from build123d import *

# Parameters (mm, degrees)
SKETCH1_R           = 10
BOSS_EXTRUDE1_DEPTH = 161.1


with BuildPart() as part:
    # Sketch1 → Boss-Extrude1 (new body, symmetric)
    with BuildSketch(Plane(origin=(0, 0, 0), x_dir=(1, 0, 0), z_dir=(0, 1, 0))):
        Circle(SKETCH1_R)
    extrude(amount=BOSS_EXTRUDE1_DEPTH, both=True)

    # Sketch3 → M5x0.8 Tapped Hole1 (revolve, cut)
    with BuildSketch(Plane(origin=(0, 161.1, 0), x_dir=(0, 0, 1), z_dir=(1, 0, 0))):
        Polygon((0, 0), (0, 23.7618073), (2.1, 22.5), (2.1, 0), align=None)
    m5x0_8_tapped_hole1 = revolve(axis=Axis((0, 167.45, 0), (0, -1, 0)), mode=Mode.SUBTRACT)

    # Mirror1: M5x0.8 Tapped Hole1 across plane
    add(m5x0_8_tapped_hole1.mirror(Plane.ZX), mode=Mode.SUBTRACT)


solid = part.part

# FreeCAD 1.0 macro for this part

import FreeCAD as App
import Part
import Sketcher
Q = App.Units.Quantity


def add_polygon(sketch, points):
    """Adds a closed chain of lines whose ends are joined by coincident constraints."""
    first, n = sketch.GeometryCount, len(points)
    for a, b in zip(points, points[1:] + points[:1]):
        sketch.addGeometry(Part.LineSegment(App.Vector(*a, 0), App.Vector(*b, 0)), False)
    for i in range(n):
        sketch.addConstraint(Sketcher.Constraint("Coincident", first + i, 2, first + (i + 1) % n, 1))

doc = App.newDocument("Part")
body = doc.addObject("PartDesign::Body", "Body")

# Sketch on XZ plane
sketch1 = body.newObject("Sketcher::SketchObject", "Sketch")
sketch1.AttachmentSupport = (doc.getObject("XZ_Plane"), [""])
sketch1.MapMode = "FlatFace"
sketch1.addGeometry(Part.Circle(App.Vector(0, 0, 0), App.Vector(0, 0, 1), 10), False)
sketch1.addConstraint(Sketcher.Constraint("Coincident", 0, 3, -1, 1))
sketch1.addConstraint(Sketcher.Constraint("Diameter", 0, 20.0))
pad1 = body.newObject("PartDesign::Pad", "Pad")
pad1.Profile = sketch1
pad1.Length = 322.2
pad1.Midplane = True

# Sketch on YZ plane
sketch2 = body.newObject("Sketcher::SketchObject", "Sketch001")
sketch2.AttachmentSupport = (doc.getObject("YZ_Plane"), [""])
sketch2.MapMode = "FlatFace"
add_polygon(sketch2, [(137.338193, 0), (161.1, 0), (161.1, 2.1), (138.6, 2.1)])  # lines 0-3
sketch2.addConstraint(Sketcher.Constraint("Horizontal", 0))
sketch2.addConstraint(Sketcher.Constraint("Vertical", 1))
sketch2.addConstraint(Sketcher.Constraint("Horizontal", 2))
sketch2.addConstraint(Sketcher.Constraint("PointOnObject", 0, 2, -1))
sketch2.addConstraint(Sketcher.Constraint("Angle", 3, Q("-121 deg")))
sketch2.addConstraint(Sketcher.Constraint("DistanceX", 2, 2, 2, 1, 22.5))
sketch2.addConstraint(Sketcher.Constraint("DistanceY", 1, 1, 1, 2, 2.1))
sketch2.addConstraint(Sketcher.Constraint("DistanceX", -1, 1, 0, 2, 161.1))
groove = body.newObject("PartDesign::Groove", "Groove")
groove.Profile = sketch2
groove.ReferenceAxis = (sketch2, ["H_Axis"])
groove.Angle = 360
doc.recompute()

mirrored = body.newObject("PartDesign::Mirrored", "Mirrored")
mirrored.Originals = [groove]
mirrored.MirrorPlane = (doc.getObject("XZ_Plane"), [""])
body.Tip = mirrored

doc.recompute()
